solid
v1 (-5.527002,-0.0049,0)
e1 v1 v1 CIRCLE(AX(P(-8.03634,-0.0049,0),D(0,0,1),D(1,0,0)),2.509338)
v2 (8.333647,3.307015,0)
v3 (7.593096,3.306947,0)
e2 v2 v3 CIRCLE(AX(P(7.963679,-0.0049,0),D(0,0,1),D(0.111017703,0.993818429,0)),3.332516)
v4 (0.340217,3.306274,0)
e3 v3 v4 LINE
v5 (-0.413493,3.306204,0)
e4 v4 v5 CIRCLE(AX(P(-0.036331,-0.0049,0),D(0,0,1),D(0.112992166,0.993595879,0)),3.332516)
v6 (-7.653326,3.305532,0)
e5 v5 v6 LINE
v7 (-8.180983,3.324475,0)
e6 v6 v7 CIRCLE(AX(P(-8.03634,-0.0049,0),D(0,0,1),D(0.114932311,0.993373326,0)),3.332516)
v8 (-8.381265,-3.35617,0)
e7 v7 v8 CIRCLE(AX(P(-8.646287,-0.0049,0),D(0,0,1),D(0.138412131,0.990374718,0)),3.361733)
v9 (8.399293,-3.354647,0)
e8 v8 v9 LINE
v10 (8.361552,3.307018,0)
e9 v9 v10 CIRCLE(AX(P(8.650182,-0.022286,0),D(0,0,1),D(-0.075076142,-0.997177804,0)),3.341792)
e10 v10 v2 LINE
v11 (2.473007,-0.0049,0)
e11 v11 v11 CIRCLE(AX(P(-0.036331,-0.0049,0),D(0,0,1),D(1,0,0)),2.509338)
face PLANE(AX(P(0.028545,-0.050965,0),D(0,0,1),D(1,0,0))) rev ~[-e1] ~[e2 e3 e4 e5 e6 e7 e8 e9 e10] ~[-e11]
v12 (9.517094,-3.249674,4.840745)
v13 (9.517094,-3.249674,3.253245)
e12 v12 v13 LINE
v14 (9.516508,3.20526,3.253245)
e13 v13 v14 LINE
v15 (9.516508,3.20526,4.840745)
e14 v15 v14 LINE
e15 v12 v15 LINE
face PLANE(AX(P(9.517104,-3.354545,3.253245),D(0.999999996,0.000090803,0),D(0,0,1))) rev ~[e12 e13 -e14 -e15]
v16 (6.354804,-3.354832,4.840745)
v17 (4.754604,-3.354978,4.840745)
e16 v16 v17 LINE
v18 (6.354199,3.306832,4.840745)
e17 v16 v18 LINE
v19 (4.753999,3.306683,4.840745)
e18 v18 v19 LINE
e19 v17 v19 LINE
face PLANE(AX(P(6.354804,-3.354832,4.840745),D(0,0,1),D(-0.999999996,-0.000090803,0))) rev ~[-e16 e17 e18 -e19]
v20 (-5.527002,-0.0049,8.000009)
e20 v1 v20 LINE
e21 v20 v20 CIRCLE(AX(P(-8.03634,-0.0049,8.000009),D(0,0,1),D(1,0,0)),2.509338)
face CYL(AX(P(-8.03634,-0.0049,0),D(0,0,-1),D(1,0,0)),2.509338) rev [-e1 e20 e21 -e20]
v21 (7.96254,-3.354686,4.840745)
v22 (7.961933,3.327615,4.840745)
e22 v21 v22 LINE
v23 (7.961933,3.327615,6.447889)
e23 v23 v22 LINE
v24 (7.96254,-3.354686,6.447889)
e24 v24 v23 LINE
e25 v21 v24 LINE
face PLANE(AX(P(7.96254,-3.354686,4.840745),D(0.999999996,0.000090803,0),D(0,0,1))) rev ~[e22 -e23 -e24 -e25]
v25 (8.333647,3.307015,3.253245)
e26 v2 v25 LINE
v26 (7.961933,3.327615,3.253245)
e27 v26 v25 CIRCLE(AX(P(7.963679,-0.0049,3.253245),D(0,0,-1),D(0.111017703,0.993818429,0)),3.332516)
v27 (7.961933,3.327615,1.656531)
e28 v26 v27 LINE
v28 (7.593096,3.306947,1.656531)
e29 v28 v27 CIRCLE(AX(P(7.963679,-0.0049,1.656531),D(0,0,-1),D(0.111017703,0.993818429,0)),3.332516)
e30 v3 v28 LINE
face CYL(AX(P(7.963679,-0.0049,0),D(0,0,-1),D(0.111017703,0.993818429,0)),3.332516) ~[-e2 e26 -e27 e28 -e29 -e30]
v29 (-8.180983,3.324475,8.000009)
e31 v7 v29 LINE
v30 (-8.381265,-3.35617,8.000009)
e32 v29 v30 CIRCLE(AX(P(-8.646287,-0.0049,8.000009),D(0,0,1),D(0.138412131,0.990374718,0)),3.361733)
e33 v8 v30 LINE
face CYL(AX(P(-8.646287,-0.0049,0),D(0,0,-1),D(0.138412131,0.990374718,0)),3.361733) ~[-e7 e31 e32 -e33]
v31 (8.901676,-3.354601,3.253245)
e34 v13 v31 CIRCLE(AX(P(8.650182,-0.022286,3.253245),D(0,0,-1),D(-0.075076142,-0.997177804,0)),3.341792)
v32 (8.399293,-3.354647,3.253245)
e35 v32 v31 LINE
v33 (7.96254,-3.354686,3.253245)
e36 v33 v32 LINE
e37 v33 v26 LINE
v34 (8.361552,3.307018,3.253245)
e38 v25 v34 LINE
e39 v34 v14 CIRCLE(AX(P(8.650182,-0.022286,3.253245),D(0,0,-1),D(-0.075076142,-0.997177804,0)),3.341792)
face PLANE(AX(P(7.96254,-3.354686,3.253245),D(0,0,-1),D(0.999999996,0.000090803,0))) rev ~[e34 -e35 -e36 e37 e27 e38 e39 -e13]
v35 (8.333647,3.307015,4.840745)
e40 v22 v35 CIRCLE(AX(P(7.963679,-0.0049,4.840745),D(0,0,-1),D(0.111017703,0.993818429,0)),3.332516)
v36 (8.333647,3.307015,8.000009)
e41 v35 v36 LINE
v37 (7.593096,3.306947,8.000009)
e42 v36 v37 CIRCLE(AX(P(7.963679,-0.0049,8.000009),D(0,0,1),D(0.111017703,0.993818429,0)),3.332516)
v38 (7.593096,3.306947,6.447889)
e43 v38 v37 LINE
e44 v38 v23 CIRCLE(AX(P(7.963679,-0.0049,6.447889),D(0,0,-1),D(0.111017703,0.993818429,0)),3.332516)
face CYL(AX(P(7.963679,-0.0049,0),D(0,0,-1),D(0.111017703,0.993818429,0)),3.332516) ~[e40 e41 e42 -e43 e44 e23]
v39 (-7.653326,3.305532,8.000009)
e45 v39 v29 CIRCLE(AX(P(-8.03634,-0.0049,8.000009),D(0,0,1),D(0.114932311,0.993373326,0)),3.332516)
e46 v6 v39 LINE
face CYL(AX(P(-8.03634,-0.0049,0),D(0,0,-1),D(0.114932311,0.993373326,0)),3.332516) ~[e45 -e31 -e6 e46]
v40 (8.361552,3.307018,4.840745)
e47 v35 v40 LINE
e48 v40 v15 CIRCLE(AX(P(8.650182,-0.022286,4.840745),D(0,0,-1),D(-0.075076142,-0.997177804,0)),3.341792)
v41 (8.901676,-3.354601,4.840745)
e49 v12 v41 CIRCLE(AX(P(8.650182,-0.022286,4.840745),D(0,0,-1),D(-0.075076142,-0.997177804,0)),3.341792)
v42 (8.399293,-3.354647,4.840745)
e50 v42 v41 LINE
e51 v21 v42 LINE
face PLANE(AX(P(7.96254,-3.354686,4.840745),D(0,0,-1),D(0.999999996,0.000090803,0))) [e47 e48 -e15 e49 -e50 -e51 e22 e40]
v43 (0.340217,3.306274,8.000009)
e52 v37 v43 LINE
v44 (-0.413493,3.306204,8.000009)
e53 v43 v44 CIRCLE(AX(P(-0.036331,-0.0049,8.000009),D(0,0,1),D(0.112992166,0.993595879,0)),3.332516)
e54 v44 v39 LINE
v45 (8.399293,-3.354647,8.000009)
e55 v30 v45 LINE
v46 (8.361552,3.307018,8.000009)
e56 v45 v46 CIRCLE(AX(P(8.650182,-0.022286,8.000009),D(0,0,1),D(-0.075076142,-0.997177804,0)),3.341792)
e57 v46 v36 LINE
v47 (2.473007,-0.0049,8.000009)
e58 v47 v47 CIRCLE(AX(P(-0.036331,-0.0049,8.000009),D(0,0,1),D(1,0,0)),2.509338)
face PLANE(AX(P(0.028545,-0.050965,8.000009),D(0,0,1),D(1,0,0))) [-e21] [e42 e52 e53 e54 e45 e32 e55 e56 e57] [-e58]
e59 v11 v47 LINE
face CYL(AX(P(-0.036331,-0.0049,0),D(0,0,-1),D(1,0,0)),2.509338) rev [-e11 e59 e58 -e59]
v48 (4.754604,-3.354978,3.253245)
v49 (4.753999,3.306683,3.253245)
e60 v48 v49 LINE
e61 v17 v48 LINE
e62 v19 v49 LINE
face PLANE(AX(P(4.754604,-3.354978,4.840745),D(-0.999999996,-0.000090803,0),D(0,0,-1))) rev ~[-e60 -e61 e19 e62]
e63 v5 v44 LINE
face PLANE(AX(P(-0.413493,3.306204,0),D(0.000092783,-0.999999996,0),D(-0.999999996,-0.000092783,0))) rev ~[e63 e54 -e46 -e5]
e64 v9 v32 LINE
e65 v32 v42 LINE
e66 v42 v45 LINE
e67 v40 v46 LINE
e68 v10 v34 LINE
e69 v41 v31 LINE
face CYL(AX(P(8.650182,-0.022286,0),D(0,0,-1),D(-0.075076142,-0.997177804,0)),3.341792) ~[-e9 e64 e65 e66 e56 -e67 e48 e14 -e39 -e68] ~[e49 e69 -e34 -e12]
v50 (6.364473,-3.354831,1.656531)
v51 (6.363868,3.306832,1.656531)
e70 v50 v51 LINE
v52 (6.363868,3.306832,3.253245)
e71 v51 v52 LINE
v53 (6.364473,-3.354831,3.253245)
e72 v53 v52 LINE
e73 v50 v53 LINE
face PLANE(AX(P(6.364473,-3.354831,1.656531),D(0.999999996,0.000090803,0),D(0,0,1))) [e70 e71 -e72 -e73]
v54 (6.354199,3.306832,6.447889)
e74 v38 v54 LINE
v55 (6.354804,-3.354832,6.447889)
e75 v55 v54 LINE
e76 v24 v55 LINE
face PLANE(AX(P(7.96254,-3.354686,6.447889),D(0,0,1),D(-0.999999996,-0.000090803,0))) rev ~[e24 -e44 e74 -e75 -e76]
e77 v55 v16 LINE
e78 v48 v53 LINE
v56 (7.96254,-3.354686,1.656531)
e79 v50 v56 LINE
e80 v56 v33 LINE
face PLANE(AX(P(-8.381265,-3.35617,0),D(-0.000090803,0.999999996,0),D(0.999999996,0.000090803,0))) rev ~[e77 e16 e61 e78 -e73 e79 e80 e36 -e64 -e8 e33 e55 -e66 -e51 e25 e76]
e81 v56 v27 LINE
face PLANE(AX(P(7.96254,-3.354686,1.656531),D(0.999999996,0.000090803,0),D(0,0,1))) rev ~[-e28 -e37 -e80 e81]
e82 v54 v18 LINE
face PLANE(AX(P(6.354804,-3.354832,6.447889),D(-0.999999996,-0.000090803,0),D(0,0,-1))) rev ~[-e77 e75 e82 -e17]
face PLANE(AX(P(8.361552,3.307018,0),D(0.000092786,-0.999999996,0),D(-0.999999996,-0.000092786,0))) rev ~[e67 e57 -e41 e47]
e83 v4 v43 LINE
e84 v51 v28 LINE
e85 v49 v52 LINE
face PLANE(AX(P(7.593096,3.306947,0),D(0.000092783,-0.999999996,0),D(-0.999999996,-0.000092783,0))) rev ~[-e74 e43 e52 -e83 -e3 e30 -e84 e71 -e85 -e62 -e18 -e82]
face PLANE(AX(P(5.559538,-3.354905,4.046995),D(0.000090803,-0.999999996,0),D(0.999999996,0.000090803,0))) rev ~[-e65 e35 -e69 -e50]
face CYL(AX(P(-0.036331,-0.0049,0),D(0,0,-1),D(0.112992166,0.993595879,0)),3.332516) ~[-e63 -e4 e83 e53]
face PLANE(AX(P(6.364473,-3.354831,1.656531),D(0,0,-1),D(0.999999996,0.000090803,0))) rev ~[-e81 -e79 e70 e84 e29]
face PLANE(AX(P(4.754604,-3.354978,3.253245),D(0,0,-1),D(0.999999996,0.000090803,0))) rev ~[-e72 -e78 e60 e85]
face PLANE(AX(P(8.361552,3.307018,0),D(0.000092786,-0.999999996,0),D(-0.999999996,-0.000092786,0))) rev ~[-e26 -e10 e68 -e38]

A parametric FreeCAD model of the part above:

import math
import FreeCAD as App
import Part
import Sketcher
from FreeCAD import Vector
Q = App.Units.Quantity

doc = App.newDocument("Part")
body = doc.addObject("PartDesign::Body", "Body")

sketch1 = doc.addObject("Sketcher::SketchObject", "Sketch")
body.addObject(sketch1)
sketch1.AttachmentSupport = (doc.XY_Plane, [""])
sketch1.MapMode = "FlatFace"
sketch1.addGeometry([
    Part.LineSegment(Vector(-8.381265, -3.35617, 0), Vector(8.399293, -3.354647, 0)),
    Part.ArcOfCircle(Part.Circle(Vector(8.650182, -0.022286, 0), Vector(0, 0, 1), 3.341792), math.radians(-94.305597), math.radians(94.954803)),
    Part.LineSegment(Vector(8.361552, 3.307018, 0), Vector(8.333647, 3.307015, 0)),
    Part.ArcOfCircle(Part.Circle(Vector(7.963679, -0.0049, 0), Vector(0, 0, 1), 3.332516), math.radians(83.626015), math.radians(96.384617)),
    Part.LineSegment(Vector(7.593096, 3.306947, 0), Vector(0.340217, 3.306274, 0)),
    Part.ArcOfCircle(Part.Circle(Vector(-0.036331, -0.0049, 0), Vector(0, 0, 1), 3.332516), math.radians(83.51217), math.radians(96.498462)),
    Part.LineSegment(Vector(-0.413493, 3.306204, 0), Vector(-7.653326, 3.305532, 0)),
    Part.ArcOfCircle(Part.Circle(Vector(-8.03634, -0.0049, 0), Vector(0, 0, 1), 3.332516), math.radians(83.400279), math.radians(92.487614)),
    Part.ArcOfCircle(Part.Circle(Vector(-8.646287, -0.0049, 0), Vector(0, 0, 1), 3.361733), math.radians(82.044026), math.radians(274.521609)),
    Part.Circle(Vector(-8.03634, -0.0049, 0), Vector(0, 0, 1), 2.509338),
    Part.Circle(Vector(-0.036331, -0.0049, 0), Vector(0, 0, 1), 2.509338),
], False)
sketch1.addConstraint([
    Sketcher.Constraint("Coincident", 0, 2, 1, 1),
    Sketcher.Constraint("Coincident", 1, 2, 2, 1),
    Sketcher.Constraint("Coincident", 2, 2, 3, 1),
    Sketcher.Constraint("Coincident", 3, 2, 4, 1),
    Sketcher.Constraint("Coincident", 4, 2, 5, 1),
    Sketcher.Constraint("Coincident", 5, 2, 6, 1),
    Sketcher.Constraint("Coincident", 6, 2, 7, 1),
    Sketcher.Constraint("Coincident", 7, 2, 8, 1),
    Sketcher.Constraint("Coincident", 8, 2, 0, 1),
    Sketcher.Constraint("Coincident", 9, 3, 7, 3),
    Sketcher.Constraint("Coincident", 10, 3, 5, 3),
    Sketcher.Constraint("Radius", 1, Q("3.341792 mm")),
    Sketcher.Constraint("Diameter", 9, Q("5.018676 mm")),
    Sketcher.Constraint("Diameter", 10, Q("5.018676 mm")),
    Sketcher.Constraint("Radius", 3, Q("3.332516 mm")),
    Sketcher.Constraint("Radius", 5, Q("3.332516 mm")),
    Sketcher.Constraint("Radius", 7, Q("3.332516 mm")),
    Sketcher.Constraint("Radius", 8, Q("3.361733 mm")),
    Sketcher.Constraint("DistanceY", 3, 3, -1, 1, Q("0.0049 mm")),
    Sketcher.Constraint("DistanceY", 5, 3, -1, 1, Q("0.0049 mm")),
    Sketcher.Constraint("DistanceY", 7, 3, -1, 1, Q("0.0049 mm")),
    Sketcher.Constraint("DistanceY", 8, 3, -1, 1, Q("0.0049 mm")),
    Sketcher.Constraint("DistanceY", 1, 3, 2, 2, Q("3.329301 mm")),
    Sketcher.Constraint("Distance", 0, Q("16.780558 mm")),
    Sketcher.Constraint("Distance", 4, Q("7.252878 mm")),
    Sketcher.Constraint("DistanceX", -1, 1, 3, 3, Q("7.963679 mm")),
    Sketcher.Constraint("DistanceX", 5, 3, -1, 1, Q("0.036331 mm")),
    Sketcher.Constraint("DistanceX", 7, 3, -1, 1, Q("8.03634 mm")),
    Sketcher.Constraint("DistanceY", -1, 1, 6, 2, Q("3.305532 mm")),
    Sketcher.Constraint("DistanceY", 8, 2, -1, 1, Q("3.35617 mm")),
    Sketcher.Constraint("DistanceX", 8, 3, 1, 3, Q("17.296469 mm")),
    Sketcher.Constraint("DistanceX", 1, 2, 1, 3, Q("0.28863 mm")),
    Sketcher.Constraint("DistanceX", 3, 3, 2, 2, Q("0.369968 mm")),
    Sketcher.Constraint("DistanceX", 3, 2, 2, 2, Q("0.740551 mm")),
    Sketcher.Constraint("DistanceX", 5, 2, 4, 2, Q("0.753711 mm")),
    Sketcher.Constraint("DistanceX", 8, 3, 6, 2, Q("0.992961 mm")),
])
pad1 = doc.addObject("PartDesign::Pad", "Pad")
body.addObject(pad1)
pad1.Profile = sketch1
pad1.Length = 8.000009

sketch2 = doc.addObject("Sketcher::SketchObject", "Sketch001")
body.addObject(sketch2)
sketch2.Placement = App.Placement(Vector(0.000305, -3.355409, 0), App.Rotation(Vector(0.999999996, 0.000090803, 0), Vector(0, 0, 1), Vector(0.000090803, -0.999999996, 0), "ZXY"))
sketch2.addGeometry([
    Part.LineSegment(Vector(4.8, 4.8, 0), Vector(4.8, 3.3, 0)),
    Part.LineSegment(Vector(4.8, 3.3, 0), Vector(6.4, 3.3, 0)),
    Part.LineSegment(Vector(6.4, 3.3, 0), Vector(6.4, 1.7, 0)),
    Part.LineSegment(Vector(6.4, 1.7, 0), Vector(8, 1.7, 0)),
    Part.LineSegment(Vector(8, 1.7, 0), Vector(8, 3.3, 0)),
    Part.LineSegment(Vector(8, 3.3, 0), Vector(9.5, 3.3, 0)),
    Part.LineSegment(Vector(9.5, 3.3, 0), Vector(9.5, 4.8, 0)),
    Part.LineSegment(Vector(9.5, 4.8, 0), Vector(8, 4.8, 0)),
    Part.LineSegment(Vector(8, 4.8, 0), Vector(8, 6.4, 0)),
    Part.LineSegment(Vector(8, 6.4, 0), Vector(6.4, 6.4, 0)),
    Part.LineSegment(Vector(6.4, 6.4, 0), Vector(6.4, 4.8, 0)),
    Part.LineSegment(Vector(6.4, 4.8, 0), Vector(4.8, 4.8, 0)),
], False)
sketch2.addConstraint([
    Sketcher.Constraint("Coincident", 0, 2, 1, 1),
    Sketcher.Constraint("Coincident", 1, 2, 2, 1),
    Sketcher.Constraint("Coincident", 2, 2, 3, 1),
    Sketcher.Constraint("Coincident", 3, 2, 4, 1),
    Sketcher.Constraint("Coincident", 4, 2, 5, 1),
    Sketcher.Constraint("Coincident", 5, 2, 6, 1),
    Sketcher.Constraint("Coincident", 6, 2, 7, 1),
    Sketcher.Constraint("Coincident", 7, 2, 8, 1),
    Sketcher.Constraint("Coincident", 8, 2, 9, 1),
    Sketcher.Constraint("Coincident", 9, 2, 10, 1),
    Sketcher.Constraint("Coincident", 10, 2, 11, 1),
    Sketcher.Constraint("Coincident", 11, 2, 0, 1),
    Sketcher.Constraint("Vertical", 0),
    Sketcher.Constraint("Horizontal", 1),
    Sketcher.Constraint("Vertical", 2),
    Sketcher.Constraint("Horizontal", 3),
    Sketcher.Constraint("Vertical", 4),
    Sketcher.Constraint("Horizontal", 5),
    Sketcher.Constraint("Vertical", 6),
    Sketcher.Constraint("Horizontal", 7),
    Sketcher.Constraint("Vertical", 8),
    Sketcher.Constraint("Horizontal", 9),
    Sketcher.Constraint("Vertical", 10),
    Sketcher.Constraint("Horizontal", 11),
    Sketcher.Constraint("Horizontal", 1, 2, 4, 2),
    Sketcher.Constraint("Horizontal", 7, 2, 10, 2),
    Sketcher.Constraint("Vertical", 4, 2, 7, 2),
    Sketcher.Constraint("DistanceX", 11, 2, 11, 1, Q("0.063 in")),
    Sketcher.Constraint("DistanceY", 0, 2, 0, 1, Q("0.0625 in")),
    Sketcher.Constraint("DistanceX", 0, 2, 5, 2, Q("0.1875 in")),
    Sketcher.Constraint("DistanceX", 1, 1, 1, 2, Q("1.609869 mm")),
    Sketcher.Constraint("DistanceX", -1, 1, 0, 2, Q("4.754299 mm")),
    Sketcher.Constraint("DistanceX", 3, 1, 3, 2, Q("1.598067 mm")),
    Sketcher.Constraint("DistanceY", 2, 2, 2, 1, Q("1.596714 mm")),
    Sketcher.Constraint("DistanceY", 8, 1, 8, 2, Q("1.607144 mm")),
    Sketcher.Constraint("DistanceY", -1, 1, 2, 2, Q("1.656531 mm")),
])
pocket1 = doc.addObject("PartDesign::Pocket", "Pocket")
body.addObject(pocket1)
pocket1.Profile = sketch2
pocket1.Length = Q("33 in")

doc.recompute()
